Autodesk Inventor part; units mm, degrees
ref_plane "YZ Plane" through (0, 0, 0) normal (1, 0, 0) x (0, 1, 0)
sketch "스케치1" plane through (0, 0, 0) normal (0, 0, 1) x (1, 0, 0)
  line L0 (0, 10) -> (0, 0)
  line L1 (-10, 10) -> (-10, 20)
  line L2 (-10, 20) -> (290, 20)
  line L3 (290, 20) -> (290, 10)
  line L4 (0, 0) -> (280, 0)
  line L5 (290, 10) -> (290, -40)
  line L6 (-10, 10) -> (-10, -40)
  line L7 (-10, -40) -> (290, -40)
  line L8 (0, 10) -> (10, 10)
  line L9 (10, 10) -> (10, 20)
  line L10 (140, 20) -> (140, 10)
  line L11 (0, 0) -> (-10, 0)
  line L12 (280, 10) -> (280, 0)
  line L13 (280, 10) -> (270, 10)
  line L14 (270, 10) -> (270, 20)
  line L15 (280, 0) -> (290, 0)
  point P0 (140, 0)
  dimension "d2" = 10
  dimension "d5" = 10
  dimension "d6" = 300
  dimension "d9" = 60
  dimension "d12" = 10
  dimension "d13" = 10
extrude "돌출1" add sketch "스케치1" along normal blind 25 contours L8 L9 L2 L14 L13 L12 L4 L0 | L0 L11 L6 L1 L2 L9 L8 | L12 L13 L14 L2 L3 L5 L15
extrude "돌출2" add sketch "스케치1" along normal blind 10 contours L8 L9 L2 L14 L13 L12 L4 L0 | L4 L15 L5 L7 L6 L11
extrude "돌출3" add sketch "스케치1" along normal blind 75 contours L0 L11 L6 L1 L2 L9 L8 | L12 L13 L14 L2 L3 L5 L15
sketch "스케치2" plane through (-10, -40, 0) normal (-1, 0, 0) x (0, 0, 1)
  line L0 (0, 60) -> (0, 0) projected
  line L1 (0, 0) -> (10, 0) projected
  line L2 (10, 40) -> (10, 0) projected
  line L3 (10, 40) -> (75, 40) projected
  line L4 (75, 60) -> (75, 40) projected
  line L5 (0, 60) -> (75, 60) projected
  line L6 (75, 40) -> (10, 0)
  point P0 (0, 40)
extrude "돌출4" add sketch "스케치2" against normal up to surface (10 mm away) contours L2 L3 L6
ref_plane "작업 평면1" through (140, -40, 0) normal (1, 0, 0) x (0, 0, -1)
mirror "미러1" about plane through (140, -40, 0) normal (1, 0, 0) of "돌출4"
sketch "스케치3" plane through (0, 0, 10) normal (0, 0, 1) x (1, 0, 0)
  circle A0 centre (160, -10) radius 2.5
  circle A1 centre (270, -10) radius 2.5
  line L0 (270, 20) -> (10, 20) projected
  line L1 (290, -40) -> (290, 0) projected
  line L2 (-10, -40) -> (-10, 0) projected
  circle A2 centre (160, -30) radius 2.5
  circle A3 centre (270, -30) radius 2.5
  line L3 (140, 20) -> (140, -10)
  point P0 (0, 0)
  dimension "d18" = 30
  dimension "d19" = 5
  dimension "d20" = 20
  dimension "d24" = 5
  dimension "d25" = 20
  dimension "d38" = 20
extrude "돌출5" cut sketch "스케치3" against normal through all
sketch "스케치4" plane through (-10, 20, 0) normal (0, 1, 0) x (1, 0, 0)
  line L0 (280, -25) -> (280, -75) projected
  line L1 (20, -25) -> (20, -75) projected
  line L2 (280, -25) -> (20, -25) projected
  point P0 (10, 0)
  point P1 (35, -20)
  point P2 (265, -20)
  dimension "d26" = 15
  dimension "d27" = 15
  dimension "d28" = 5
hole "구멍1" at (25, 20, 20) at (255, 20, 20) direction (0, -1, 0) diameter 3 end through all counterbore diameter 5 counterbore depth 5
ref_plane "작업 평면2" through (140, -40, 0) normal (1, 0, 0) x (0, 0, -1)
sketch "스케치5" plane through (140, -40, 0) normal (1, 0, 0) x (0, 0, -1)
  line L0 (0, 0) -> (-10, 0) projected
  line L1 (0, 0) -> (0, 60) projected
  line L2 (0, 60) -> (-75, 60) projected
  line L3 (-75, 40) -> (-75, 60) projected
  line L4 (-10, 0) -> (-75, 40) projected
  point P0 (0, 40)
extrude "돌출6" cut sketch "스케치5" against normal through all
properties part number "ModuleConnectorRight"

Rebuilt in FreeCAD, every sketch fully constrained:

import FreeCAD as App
import Part
import Sketcher

V = App.Vector
Q = App.Units.Quantity

doc = App.newDocument("Part")
body = doc.addObject("PartDesign::Body", "Body")

# Sketch on XY plane
sketch1 = body.newObject("Sketcher::SketchObject", "Sketch")
sketch1.AttachmentSupport = (doc.getObject("XY_Plane"), [""])
sketch1.MapMode = "FlatFace"
sketch1.addGeometry(Part.LineSegment(V(-10, 20, 0), V(-10, 0, 0)), False)
sketch1.addGeometry(Part.LineSegment(V(-10, 0, 0), V(290, 0, 0)), False)
sketch1.addGeometry(Part.LineSegment(V(290, 0, 0), V(290, 20, 0)), False)
sketch1.addGeometry(Part.LineSegment(V(290, 20, 0), V(-10, 20, 0)), False)
sketch1.addConstraint(Sketcher.Constraint("Coincident", 0, 2, 1, 1))
sketch1.addConstraint(Sketcher.Constraint("Coincident", 1, 2, 2, 1))
sketch1.addConstraint(Sketcher.Constraint("Coincident", 2, 2, 3, 1))
sketch1.addConstraint(Sketcher.Constraint("Coincident", 3, 2, 0, 1))
sketch1.addConstraint(Sketcher.Constraint("Vertical", 0))
sketch1.addConstraint(Sketcher.Constraint("Horizontal", 1))
sketch1.addConstraint(Sketcher.Constraint("Vertical", 2))
sketch1.addConstraint(Sketcher.Constraint("Horizontal", 3))
sketch1.addConstraint(Sketcher.Constraint("PointOnObject", 0, 2, -1))
sketch1.addConstraint(Sketcher.Constraint("DistanceX", 1, 1, 1, 2, Q("300 mm")))
sketch1.addConstraint(Sketcher.Constraint("DistanceX", 0, 2, -1, 1, Q("10 mm")))
sketch1.addConstraint(Sketcher.Constraint("DistanceY", 0, 2, 0, 1, Q("20 mm")))
pad1 = body.newObject("PartDesign::Pad", "Pad")
pad1.Profile = sketch1
pad1.Length = 25

# Sketch on XY plane
sketch2 = body.newObject("Sketcher::SketchObject", "Sketch001")
sketch2.AttachmentSupport = (doc.getObject("XY_Plane"), [""])
sketch2.MapMode = "FlatFace"
sketch2.addGeometry(Part.LineSegment(V(10, 10, 0), V(0, 10, 0)), False)
sketch2.addGeometry(Part.LineSegment(V(0, 10, 0), V(0, 0, 0)), False)
sketch2.addGeometry(Part.LineSegment(V(0, 0, 0), V(-10, 0, 0)), False)
sketch2.addGeometry(Part.LineSegment(V(-10, 0, 0), V(-10, -40, 0)), False)
sketch2.addGeometry(Part.LineSegment(V(-10, -40, 0), V(290, -40, 0)), False)
sketch2.addGeometry(Part.LineSegment(V(290, -40, 0), V(290, 0, 0)), False)
sketch2.addGeometry(Part.LineSegment(V(290, 0, 0), V(280, 0, 0)), False)
sketch2.addGeometry(Part.LineSegment(V(280, 0, 0), V(280, 10, 0)), False)
sketch2.addGeometry(Part.LineSegment(V(280, 10, 0), V(270, 10, 0)), False)
sketch2.addGeometry(Part.LineSegment(V(270, 10, 0), V(270, 20, 0)), False)
sketch2.addGeometry(Part.LineSegment(V(270, 20, 0), V(10, 20, 0)), False)
sketch2.addGeometry(Part.LineSegment(V(10, 20, 0), V(10, 10, 0)), False)
sketch2.addConstraint(Sketcher.Constraint("Coincident", 0, 2, 1, 1))
sketch2.addConstraint(Sketcher.Constraint("Coincident", 1, 2, 2, 1))
sketch2.addConstraint(Sketcher.Constraint("Coincident", 2, 2, 3, 1))
sketch2.addConstraint(Sketcher.Constraint("Coincident", 3, 2, 4, 1))
sketch2.addConstraint(Sketcher.Constraint("Coincident", 4, 2, 5, 1))
sketch2.addConstraint(Sketcher.Constraint("Coincident", 5, 2, 6, 1))
sketch2.addConstraint(Sketcher.Constraint("Coincident", 6, 2, 7, 1))
sketch2.addConstraint(Sketcher.Constraint("Coincident", 7, 2, 8, 1))
sketch2.addConstraint(Sketcher.Constraint("Coincident", 8, 2, 9, 1))
sketch2.addConstraint(Sketcher.Constraint("Coincident", 9, 2, 10, 1))
sketch2.addConstraint(Sketcher.Constraint("Coincident", 10, 2, 11, 1))
sketch2.addConstraint(Sketcher.Constraint("Coincident", 11, 2, 0, 1))
sketch2.addConstraint(Sketcher.Constraint("Horizontal", 0))
sketch2.addConstraint(Sketcher.Constraint("Vertical", 1))
sketch2.addConstraint(Sketcher.Constraint("Horizontal", 2))
sketch2.addConstraint(Sketcher.Constraint("Vertical", 3))
sketch2.addConstraint(Sketcher.Constraint("Horizontal", 4))
sketch2.addConstraint(Sketcher.Constraint("Vertical", 5))
sketch2.addConstraint(Sketcher.Constraint("Horizontal", 6))
sketch2.addConstraint(Sketcher.Constraint("Vertical", 7))
sketch2.addConstraint(Sketcher.Constraint("Horizontal", 8))
sketch2.addConstraint(Sketcher.Constraint("Vertical", 9))
sketch2.addConstraint(Sketcher.Constraint("Horizontal", 10))
sketch2.addConstraint(Sketcher.Constraint("Vertical", 11))
sketch2.addConstraint(Sketcher.Constraint("Coincident", 1, 2, -1, 1))
sketch2.addConstraint(Sketcher.Constraint("PointOnObject", 5, 2, -1))
sketch2.addConstraint(Sketcher.Constraint("Horizontal", 0, 2, 7, 2))
sketch2.addConstraint(Sketcher.Constraint("Equal", 0, 2))
sketch2.addConstraint(Sketcher.Constraint("Equal", 2, 6))
sketch2.addConstraint(Sketcher.Constraint("Equal", 6, 8))
sketch2.addConstraint(Sketcher.Constraint("Equal", 8, 1))
sketch2.addConstraint(Sketcher.Constraint("Equal", 7, 9))
sketch2.addConstraint(Sketcher.Constraint("DistanceX", 0, 2, 0, 1, Q("10 mm")))
sketch2.addConstraint(Sketcher.Constraint("DistanceX", 4, 1, 4, 2, Q("300 mm")))
sketch2.addConstraint(Sketcher.Constraint("DistanceY", 4, 2, 9, 2, Q("60 mm")))
pad2 = body.newObject("PartDesign::Pad", "Pad001")
pad2.Profile = sketch2
pad2.Length = 10

# Sketch on XY plane
sketch3 = body.newObject("Sketcher::SketchObject", "Sketch002")
sketch3.AttachmentSupport = (doc.getObject("XY_Plane"), [""])
sketch3.MapMode = "FlatFace"
sketch3.addGeometry(Part.LineSegment(V(0, 0, 0), V(0, 10, 0)), False)
sketch3.addGeometry(Part.LineSegment(V(0, 10, 0), V(10, 10, 0)), False)
sketch3.addGeometry(Part.LineSegment(V(10, 10, 0), V(10, 20, 0)), False)
sketch3.addGeometry(Part.LineSegment(V(10, 20, 0), V(-10, 20, 0)), False)
sketch3.addGeometry(Part.LineSegment(V(-10, 20, 0), V(-10, 0, 0)), False)
sketch3.addGeometry(Part.LineSegment(V(-10, 0, 0), V(0, 0, 0)), False)
sketch3.addGeometry(Part.LineSegment(V(280, 10, 0), V(280, 0, 0)), False)
sketch3.addGeometry(Part.LineSegment(V(280, 0, 0), V(290, 0, 0)), False)
sketch3.addGeometry(Part.LineSegment(V(290, 0, 0), V(290, 20, 0)), False)
sketch3.addGeometry(Part.LineSegment(V(290, 20, 0), V(270, 20, 0)), False)
sketch3.addGeometry(Part.LineSegment(V(270, 20, 0), V(270, 10, 0)), False)
sketch3.addGeometry(Part.LineSegment(V(270, 10, 0), V(280, 10, 0)), False)
sketch3.addConstraint(Sketcher.Constraint("Coincident", 0, 2, 1, 1))
sketch3.addConstraint(Sketcher.Constraint("Coincident", 1, 2, 2, 1))
sketch3.addConstraint(Sketcher.Constraint("Coincident", 2, 2, 3, 1))
sketch3.addConstraint(Sketcher.Constraint("Coincident", 3, 2, 4, 1))
sketch3.addConstraint(Sketcher.Constraint("Coincident", 4, 2, 5, 1))
sketch3.addConstraint(Sketcher.Constraint("Coincident", 5, 2, 0, 1))
sketch3.addConstraint(Sketcher.Constraint("Coincident", 6, 2, 7, 1))
sketch3.addConstraint(Sketcher.Constraint("Coincident", 7, 2, 8, 1))
sketch3.addConstraint(Sketcher.Constraint("Coincident", 8, 2, 9, 1))
sketch3.addConstraint(Sketcher.Constraint("Coincident", 9, 2, 10, 1))
sketch3.addConstraint(Sketcher.Constraint("Coincident", 10, 2, 11, 1))
sketch3.addConstraint(Sketcher.Constraint("Coincident", 11, 2, 6, 1))
sketch3.addConstraint(Sketcher.Constraint("Vertical", 0))
sketch3.addConstraint(Sketcher.Constraint("Horizontal", 1))
sketch3.addConstraint(Sketcher.Constraint("Vertical", 2))
sketch3.addConstraint(Sketcher.Constraint("Horizontal", 3))
sketch3.addConstraint(Sketcher.Constraint("Vertical", 4))
sketch3.addConstraint(Sketcher.Constraint("Horizontal", 5))
sketch3.addConstraint(Sketcher.Constraint("Vertical", 6))
sketch3.addConstraint(Sketcher.Constraint("Horizontal", 7))
sketch3.addConstraint(Sketcher.Constraint("Vertical", 8))
sketch3.addConstraint(Sketcher.Constraint("Horizontal", 9))
sketch3.addConstraint(Sketcher.Constraint("Vertical", 10))
sketch3.addConstraint(Sketcher.Constraint("Horizontal", 11))
sketch3.addConstraint(Sketcher.Constraint("Coincident", 5, 2, -1, 1))
sketch3.addConstraint(Sketcher.Constraint("PointOnObject", 6, 2, -1))
sketch3.addConstraint(Sketcher.Constraint("Horizontal", 3, 2, 8, 2))
sketch3.addConstraint(Sketcher.Constraint("Horizontal", 1, 2, 10, 2))
sketch3.addConstraint(Sketcher.Constraint("Equal", 1, 5))
sketch3.addConstraint(Sketcher.Constraint("Equal", 5, 7))
sketch3.addConstraint(Sketcher.Constraint("Equal", 3, 9))
sketch3.addConstraint(Sketcher.Constraint("Equal", 11, 0))
sketch3.addConstraint(Sketcher.Constraint("Equal", 0, 2))
sketch3.addConstraint(Sketcher.Constraint("DistanceX", 1, 1, 1, 2, Q("10 mm")))
sketch3.addConstraint(Sketcher.Constraint("DistanceX", -1, 1, 6, 2, Q("280 mm")))
pad3 = body.newObject("PartDesign::Pad", "Pad002")
pad3.Profile = sketch3
pad3.Length = 75

# Sketch on YZ plane
sketch4 = body.newObject("Sketcher::SketchObject", "Sketch003")
sketch4.AttachmentSupport = (doc.getObject("YZ_Plane"), [""])
sketch4.MapMode = "FlatFace"
sketch4.AttachmentOffset = App.Placement(V(0, 0, -10), App.Rotation())
sketch4.addGeometry(Part.LineSegment(V(0, 10, 0), V(-40, 10, 0)), False)
sketch4.addGeometry(Part.LineSegment(V(-40, 10, 0), V(0, 75, 0)), False)
sketch4.addGeometry(Part.LineSegment(V(0, 75, 0), V(0, 10, 0)), False)
sketch4.addConstraint(Sketcher.Constraint("Coincident", 0, 2, 1, 1))
sketch4.addConstraint(Sketcher.Constraint("Coincident", 1, 2, 2, 1))
sketch4.addConstraint(Sketcher.Constraint("Coincident", 2, 2, 0, 1))
sketch4.addConstraint(Sketcher.Constraint("Horizontal", 0))
sketch4.addConstraint(Sketcher.Constraint("Vertical", 2))
sketch4.addConstraint(Sketcher.Constraint("PointOnObject", 1, 2, -2))
sketch4.addConstraint(Sketcher.Constraint("DistanceX", 0, 2, 0, 1, Q("40 mm")))
sketch4.addConstraint(Sketcher.Constraint("DistanceY", 2, 2, 2, 1, Q("65 mm")))
sketch4.addConstraint(Sketcher.Constraint("DistanceY", -1, 1, 0, 2, Q("10 mm")))
pad4 = body.newObject("PartDesign::Pad", "Pad003")
pad4.Profile = sketch4
pad4.Length = 10
doc.recompute()

datumplane = body.newObject("PartDesign::Plane", "DatumPlane")
datumplane.AttachmentSupport = (doc.getObject("YZ_Plane"), [""])
datumplane.MapMode = "FlatFace"
datumplane.AttachmentOffset = App.Placement(V(0, 0, 140), App.Rotation())
mirrored = body.newObject("PartDesign::Mirrored", "Mirrored")
mirrored.Originals = [pad4]
mirrored.MirrorPlane = (datumplane, [""])
body.Tip = mirrored

# Sketch on XY plane
sketch5 = body.newObject("Sketcher::SketchObject", "Sketch004")
sketch5.AttachmentSupport = (doc.getObject("XY_Plane"), [""])
sketch5.MapMode = "FlatFace"
sketch5.AttachmentOffset = App.Placement(V(0, 0, 10), App.Rotation())
sketch5.addGeometry(Part.Circle(V(160, -10, 0), V(0, 0, 1), 2.5), False)
sketch5.addGeometry(Part.Circle(V(270, -10, 0), V(0, 0, 1), 2.5), False)
sketch5.addGeometry(Part.Circle(V(160, -30, 0), V(0, 0, 1), 2.5), False)
sketch5.addGeometry(Part.Circle(V(270, -30, 0), V(0, 0, 1), 2.5), False)
sketch5.addConstraint(Sketcher.Constraint("Equal", 0, 1))
sketch5.addConstraint(Sketcher.Constraint("Equal", 1, 2))
sketch5.addConstraint(Sketcher.Constraint("Equal", 2, 3))
sketch5.addConstraint(Sketcher.Constraint("Horizontal", 0, 3, 1, 3))
sketch5.addConstraint(Sketcher.Constraint("Horizontal", 2, 3, 3, 3))
sketch5.addConstraint(Sketcher.Constraint("Vertical", 0, 3, 2, 3))
sketch5.addConstraint(Sketcher.Constraint("Vertical", 1, 3, 3, 3))
sketch5.addConstraint(Sketcher.Constraint("Diameter", 0, Q("5 mm")))
sketch5.addConstraint(Sketcher.Constraint("DistanceY", 2, 3, -1, 1, Q("30 mm")))
sketch5.addConstraint(Sketcher.Constraint("DistanceY", 2, 3, 0, 3, Q("20 mm")))
sketch5.addConstraint(Sketcher.Constraint("DistanceX", -1, 1, 0, 3, Q("160 mm")))
sketch5.addConstraint(Sketcher.Constraint("DistanceX", -1, 1, 1, 3, Q("270 mm")))
pocket1 = body.newObject("PartDesign::Pocket", "Pocket")
pocket1.Profile = sketch5
pocket1.Type = "ThroughAll"

# Sketch on XZ plane
sketch6 = body.newObject("Sketcher::SketchObject", "Sketch005")
sketch6.AttachmentSupport = (doc.getObject("XZ_Plane"), [""])
sketch6.MapMode = "FlatFace"
sketch6.AttachmentOffset = App.Placement(V(0, 0, -20), App.Rotation())
sketch6.addGeometry(Part.Circle(V(25, 20, 0), V(0, 0, 1), 1.5), False)
sketch6.addGeometry(Part.Circle(V(255, 20, 0), V(0, 0, 1), 1.5), False)
sketch6.addConstraint(Sketcher.Constraint("Equal", 0, 1))
sketch6.addConstraint(Sketcher.Constraint("Horizontal", 0, 3, 1, 3))
sketch6.addConstraint(Sketcher.Constraint("Diameter", 0, Q("3 mm")))
sketch6.addConstraint(Sketcher.Constraint("DistanceX", -1, 1, 0, 3, Q("25 mm")))
sketch6.addConstraint(Sketcher.Constraint("DistanceY", -1, 1, 0, 3, Q("20 mm")))
sketch6.addConstraint(Sketcher.Constraint("DistanceX", -1, 1, 1, 3, Q("255 mm")))
doc.recompute()
hole = body.newObject("PartDesign::Hole", "Hole")
hole.Profile = sketch6
hole.ThreadType = "None"
hole.Diameter = 3
hole.DepthType = "ThroughAll"
hole.HoleCutType = "Counterbore"
hole.HoleCutDiameter = 5
hole.HoleCutDepth = 5
hole.Reversed = True

# Sketch on YZ plane
sketch7 = body.newObject("Sketcher::SketchObject", "Sketch006")
sketch7.AttachmentSupport = (doc.getObject("YZ_Plane"), [""])
sketch7.MapMode = "FlatFace"
sketch7.AttachmentOffset = App.Placement(V(0, 0, 140), App.Rotation())
sketch7.addGeometry(Part.LineSegment(V(-40, 10, 0), V(-40, 0, 0)), False)
sketch7.addGeometry(Part.LineSegment(V(-40, 0, 0), V(20, 0, 0)), False)
sketch7.addGeometry(Part.LineSegment(V(20, 0, 0), V(20, 75, 0)), False)
sketch7.addGeometry(Part.LineSegment(V(20, 75, 0), V(0, 75, 0)), False)
sketch7.addGeometry(Part.LineSegment(V(0, 75, 0), V(-40, 10, 0)), False)
sketch7.addConstraint(Sketcher.Constraint("Coincident", 0, 2, 1, 1))
sketch7.addConstraint(Sketcher.Constraint("Coincident", 1, 2, 2, 1))
sketch7.addConstraint(Sketcher.Constraint("Coincident", 2, 2, 3, 1))
sketch7.addConstraint(Sketcher.Constraint("Coincident", 3, 2, 4, 1))
sketch7.addConstraint(Sketcher.Constraint("Coincident", 4, 2, 0, 1))
sketch7.addConstraint(Sketcher.Constraint("Vertical", 0))
sketch7.addConstraint(Sketcher.Constraint("Horizontal", 1))
sketch7.addConstraint(Sketcher.Constraint("Vertical", 2))
sketch7.addConstraint(Sketcher.Constraint("Horizontal", 3))
sketch7.addConstraint(Sketcher.Constraint("PointOnObject", 0, 2, -1))
sketch7.addConstraint(Sketcher.Constraint("PointOnObject", 3, 2, -2))
sketch7.addConstraint(Sketcher.Constraint("DistanceX", 1, 1, 1, 2, Q("60 mm")))
sketch7.addConstraint(Sketcher.Constraint("DistanceX", 3, 2, 3, 1, Q("20 mm")))
sketch7.addConstraint(Sketcher.Constraint("DistanceY", 0, 2, 0, 1, Q("10 mm")))
sketch7.addConstraint(Sketcher.Constraint("DistanceY", 2, 1, 2, 2, Q("75 mm")))
pocket2 = body.newObject("PartDesign::Pocket", "Pocket001")
pocket2.Profile = sketch7
pocket2.Type = "ThroughAll"

doc.recompute()
